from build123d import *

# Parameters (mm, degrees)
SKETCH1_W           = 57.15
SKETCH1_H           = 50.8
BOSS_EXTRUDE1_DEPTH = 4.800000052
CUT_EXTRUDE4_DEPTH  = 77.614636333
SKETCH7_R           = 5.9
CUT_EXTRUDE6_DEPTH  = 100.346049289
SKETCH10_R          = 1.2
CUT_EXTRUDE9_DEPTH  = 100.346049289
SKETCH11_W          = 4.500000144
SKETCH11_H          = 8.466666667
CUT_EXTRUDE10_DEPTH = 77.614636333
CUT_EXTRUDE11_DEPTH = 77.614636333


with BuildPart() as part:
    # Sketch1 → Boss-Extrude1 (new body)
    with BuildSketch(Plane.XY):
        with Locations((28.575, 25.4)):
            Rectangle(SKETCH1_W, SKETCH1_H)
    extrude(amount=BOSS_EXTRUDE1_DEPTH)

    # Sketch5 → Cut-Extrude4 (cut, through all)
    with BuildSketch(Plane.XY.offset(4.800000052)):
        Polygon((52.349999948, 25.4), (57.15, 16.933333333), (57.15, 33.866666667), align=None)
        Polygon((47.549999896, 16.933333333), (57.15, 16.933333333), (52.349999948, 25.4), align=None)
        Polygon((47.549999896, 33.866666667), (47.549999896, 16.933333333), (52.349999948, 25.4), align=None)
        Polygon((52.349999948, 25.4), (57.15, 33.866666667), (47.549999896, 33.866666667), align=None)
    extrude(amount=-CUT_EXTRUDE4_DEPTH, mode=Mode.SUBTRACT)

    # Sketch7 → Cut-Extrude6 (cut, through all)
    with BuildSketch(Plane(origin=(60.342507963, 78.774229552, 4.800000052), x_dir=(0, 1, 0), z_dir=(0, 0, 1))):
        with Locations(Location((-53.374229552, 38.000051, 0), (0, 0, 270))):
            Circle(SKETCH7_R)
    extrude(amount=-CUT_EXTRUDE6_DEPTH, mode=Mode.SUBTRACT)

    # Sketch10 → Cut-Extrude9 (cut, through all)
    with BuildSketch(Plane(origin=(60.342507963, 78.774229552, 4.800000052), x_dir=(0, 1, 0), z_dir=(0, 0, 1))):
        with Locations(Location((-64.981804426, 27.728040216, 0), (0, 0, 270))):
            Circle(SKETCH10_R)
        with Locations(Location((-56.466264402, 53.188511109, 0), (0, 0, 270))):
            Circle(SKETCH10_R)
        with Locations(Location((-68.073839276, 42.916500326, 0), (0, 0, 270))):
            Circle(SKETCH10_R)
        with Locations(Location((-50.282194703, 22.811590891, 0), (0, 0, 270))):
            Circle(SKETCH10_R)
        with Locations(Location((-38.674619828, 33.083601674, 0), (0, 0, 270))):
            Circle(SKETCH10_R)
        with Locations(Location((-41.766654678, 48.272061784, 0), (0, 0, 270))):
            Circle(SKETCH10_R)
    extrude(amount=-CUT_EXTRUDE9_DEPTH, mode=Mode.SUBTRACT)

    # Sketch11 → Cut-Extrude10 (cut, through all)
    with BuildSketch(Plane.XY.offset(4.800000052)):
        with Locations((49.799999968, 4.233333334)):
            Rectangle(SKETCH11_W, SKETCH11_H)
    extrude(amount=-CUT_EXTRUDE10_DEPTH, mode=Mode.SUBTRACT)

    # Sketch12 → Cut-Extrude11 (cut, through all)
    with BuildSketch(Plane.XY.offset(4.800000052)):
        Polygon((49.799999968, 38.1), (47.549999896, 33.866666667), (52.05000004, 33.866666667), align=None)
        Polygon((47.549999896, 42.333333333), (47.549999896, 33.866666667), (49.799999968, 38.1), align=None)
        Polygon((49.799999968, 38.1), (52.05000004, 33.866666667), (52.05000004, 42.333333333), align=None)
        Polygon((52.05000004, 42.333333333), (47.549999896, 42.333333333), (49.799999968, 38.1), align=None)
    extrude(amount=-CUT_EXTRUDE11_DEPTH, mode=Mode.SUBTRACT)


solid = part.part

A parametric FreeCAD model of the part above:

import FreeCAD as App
import Part
import Sketcher

V = App.Vector
Q = App.Units.Quantity

doc = App.newDocument("Part")
body = doc.addObject("PartDesign::Body", "Body")

# Sketch on XY plane
sketch1 = doc.addObject("Sketcher::SketchObject", "Sketch")
body.addObject(sketch1)
sketch1.AttachmentSupport = (doc.XY_Plane, [""])
sketch1.MapMode = "FlatFace"
sketch1.addGeometry(Part.LineSegment(V(0, 51, 0), V(0, 0, 0)), False)
sketch1.addGeometry(Part.LineSegment(V(0, 0, 0), V(57, 0, 0)), False)
sketch1.addGeometry(Part.LineSegment(V(57, 0, 0), V(57, 51, 0)), False)
sketch1.addGeometry(Part.LineSegment(V(57, 51, 0), V(0, 51, 0)), False)
sketch1.addConstraint(Sketcher.Constraint("Coincident", 0, 2, 1, 1))
sketch1.addConstraint(Sketcher.Constraint("Coincident", 1, 2, 2, 1))
sketch1.addConstraint(Sketcher.Constraint("Coincident", 2, 2, 3, 1))
sketch1.addConstraint(Sketcher.Constraint("Coincident", 3, 2, 0, 1))
sketch1.addConstraint(Sketcher.Constraint("Vertical", 0))
sketch1.addConstraint(Sketcher.Constraint("Horizontal", 1))
sketch1.addConstraint(Sketcher.Constraint("Vertical", 2))
sketch1.addConstraint(Sketcher.Constraint("Horizontal", 3))
sketch1.addConstraint(Sketcher.Constraint("Coincident", 0, 2, -1, 1))
sketch1.addConstraint(Sketcher.Constraint("DistanceY", 0, 2, 0, 1, Q("50.8 mm")))
sketch1.addConstraint(Sketcher.Constraint("DistanceX", 1, 1, 1, 2, Q("57.15 mm")))
pad1 = doc.addObject("PartDesign::Pad", "Pad")
body.addObject(pad1)
pad1.Profile = sketch1
pad1.Length = 4.8

# Sketch on XY plane
sketch2 = doc.addObject("Sketcher::SketchObject", "Sketch001")
body.addObject(sketch2)
sketch2.AttachmentSupport = (doc.XY_Plane, [""])
sketch2.MapMode = "FlatFace"
sketch2.AttachmentOffset = App.Placement(V(0, 0, 4.8), App.Rotation())
sketch2.addGeometry(Part.LineSegment(V(57, 17, 0), V(57, 34, 0)), False)
sketch2.addGeometry(Part.LineSegment(V(57, 34, 0), V(48, 34, 0)), False)
sketch2.addGeometry(Part.LineSegment(V(48, 34, 0), V(48, 17, 0)), False)
sketch2.addGeometry(Part.LineSegment(V(48, 17, 0), V(57, 17, 0)), False)
sketch2.addConstraint(Sketcher.Constraint("Coincident", 0, 2, 1, 1))
sketch2.addConstraint(Sketcher.Constraint("Coincident", 1, 2, 2, 1))
sketch2.addConstraint(Sketcher.Constraint("Coincident", 2, 2, 3, 1))
sketch2.addConstraint(Sketcher.Constraint("Coincident", 3, 2, 0, 1))
sketch2.addConstraint(Sketcher.Constraint("Vertical", 0))
sketch2.addConstraint(Sketcher.Constraint("Horizontal", 1))
sketch2.addConstraint(Sketcher.Constraint("Vertical", 2))
sketch2.addConstraint(Sketcher.Constraint("Horizontal", 3))
sketch2.addConstraint(Sketcher.Constraint("DistanceX", 1, 2, 1, 1, Q("9.6 mm")))
sketch2.addConstraint(Sketcher.Constraint("DistanceX", -1, 1, 0, 2, Q("57.15 mm")))
sketch2.addConstraint(Sketcher.Constraint("DistanceY", 0, 1, 0, 2, Q("16.933333 mm")))
sketch2.addConstraint(Sketcher.Constraint("DistanceY", -1, 1, 0, 2, Q("33.866667 mm")))
pocket1 = doc.addObject("PartDesign::Pocket", "Pocket")
body.addObject(pocket1)
pocket1.Profile = sketch2
pocket1.Type = "ThroughAll"

# Sketch on XY plane
sketch3 = doc.addObject("Sketcher::SketchObject", "Sketch002")
body.addObject(sketch3)
sketch3.AttachmentSupport = (doc.XY_Plane, [""])
sketch3.MapMode = "FlatFace"
sketch3.AttachmentOffset = App.Placement(V(0, 0, 4.8), App.Rotation())
sketch3.addGeometry(Part.Circle(V(22, 25, 0), V(0, 0, 1), 6), False)
sketch3.addConstraint(Sketcher.Constraint("Diameter", 0, Q("11.8 mm")))
sketch3.addConstraint(Sketcher.Constraint("DistanceY", -1, 1, 0, 3, Q("25.4 mm")))
sketch3.addConstraint(Sketcher.Constraint("DistanceX", -1, 1, 0, 3, Q("22.342457 mm")))
pocket2 = doc.addObject("PartDesign::Pocket", "Pocket001")
body.addObject(pocket2)
pocket2.Profile = sketch3
pocket2.Type = "ThroughAll"

# Sketch on XY plane
sketch4 = doc.addObject("Sketcher::SketchObject", "Sketch003")
body.addObject(sketch4)
sketch4.AttachmentSupport = (doc.XY_Plane, [""])
sketch4.MapMode = "FlatFace"
sketch4.AttachmentOffset = App.Placement(V(0, 0, 4.8), App.Rotation())
sketch4.addGeometry(Part.Circle(V(32.6, 13.8, 0), V(0, 0, 1), 1.2), False)
sketch4.addGeometry(Part.Circle(V(7.2, 22.3, 0), V(0, 0, 1), 1.2), False)
sketch4.addGeometry(Part.Circle(V(17.4, 10.7, 0), V(0, 0, 1), 1.2), False)
sketch4.addGeometry(Part.Circle(V(37.5, 28.5, 0), V(0, 0, 1), 1.2), False)
sketch4.addGeometry(Part.Circle(V(27.3, 40.1, 0), V(0, 0, 1), 1.2), False)
sketch4.addGeometry(Part.Circle(V(12.1, 37, 0), V(0, 0, 1), 1.2), False)
sketch4.addConstraint(Sketcher.Constraint("Equal", 0, 1))
sketch4.addConstraint(Sketcher.Constraint("Equal", 1, 2))
sketch4.addConstraint(Sketcher.Constraint("Equal", 2, 3))
sketch4.addConstraint(Sketcher.Constraint("Equal", 3, 4))
sketch4.addConstraint(Sketcher.Constraint("Equal", 4, 5))
sketch4.addConstraint(Sketcher.Constraint("Diameter", 0, Q("2.4 mm")))
sketch4.addConstraint(Sketcher.Constraint("DistanceX", 2, 3, 4, 3, Q("9.832899 mm")))
sketch4.addConstraint(Sketcher.Constraint("DistanceY", -1, 1, 2, 3, Q("10.70039 mm")))
sketch4.addConstraint(Sketcher.Constraint("DistanceY", -1, 1, 4, 3, Q("40.09961 mm")))
sketch4.addConstraint(Sketcher.Constraint("DistanceX", 1, 3, 0, 3, Q("25.460471 mm")))
sketch4.addConstraint(Sketcher.Constraint("DistanceY", 0, 3, 1, 3, Q("8.51554 mm")))
sketch4.addConstraint(Sketcher.Constraint("DistanceX", 1, 3, 2, 3, Q("10.272011 mm")))
sketch4.addConstraint(Sketcher.Constraint("DistanceX", 0, 3, 3, 3, Q("4.916449 mm")))
sketch4.addConstraint(Sketcher.Constraint("DistanceY", 0, 3, 3, 3, Q("14.69961 mm")))
sketch4.addConstraint(Sketcher.Constraint("DistanceX", 1, 3, 5, 3, Q("4.916449 mm")))
sketch4.addConstraint(Sketcher.Constraint("DistanceY", 1, 3, 5, 3, Q("14.69961 mm")))
sketch4.addConstraint(Sketcher.Constraint("DistanceX", -1, 1, 0, 3, Q("32.614468 mm")))
sketch4.addConstraint(Sketcher.Constraint("DistanceY", -1, 1, 0, 3, Q("13.792425 mm")))
pocket3 = doc.addObject("PartDesign::Pocket", "Pocket002")
body.addObject(pocket3)
pocket3.Profile = sketch4
pocket3.Type = "ThroughAll"

# Sketch on XY plane
sketch5 = doc.addObject("Sketcher::SketchObject", "Sketch004")
body.addObject(sketch5)
sketch5.AttachmentSupport = (doc.XY_Plane, [""])
sketch5.MapMode = "FlatFace"
sketch5.AttachmentOffset = App.Placement(V(0, 0, 4.8), App.Rotation())
sketch5.addGeometry(Part.LineSegment(V(47.5, 8.5, 0), V(47.5, 0, 0)), False)
sketch5.addGeometry(Part.LineSegment(V(47.5, 0, 0), V(52.1, 0, 0)), False)
sketch5.addGeometry(Part.LineSegment(V(52.1, 0, 0), V(52.1, 8.5, 0)), False)
sketch5.addGeometry(Part.LineSegment(V(52.1, 8.5, 0), V(47.5, 8.5, 0)), False)
sketch5.addConstraint(Sketcher.Constraint("Coincident", 0, 2, 1, 1))
sketch5.addConstraint(Sketcher.Constraint("Coincident", 1, 2, 2, 1))
sketch5.addConstraint(Sketcher.Constraint("Coincident", 2, 2, 3, 1))
sketch5.addConstraint(Sketcher.Constraint("Coincident", 3, 2, 0, 1))
sketch5.addConstraint(Sketcher.Constraint("Vertical", 0))
sketch5.addConstraint(Sketcher.Constraint("Horizontal", 1))
sketch5.addConstraint(Sketcher.Constraint("Vertical", 2))
sketch5.addConstraint(Sketcher.Constraint("Horizontal", 3))
sketch5.addConstraint(Sketcher.Constraint("PointOnObject", 0, 2, -1))
sketch5.addConstraint(Sketcher.Constraint("DistanceX", 1, 1, 1, 2, Q("4.5 mm")))
sketch5.addConstraint(Sketcher.Constraint("DistanceX", -1, 1, 0, 2, Q("47.55 mm")))
sketch5.addConstraint(Sketcher.Constraint("DistanceY", 0, 2, 0, 1, Q("8.466667 mm")))
pocket4 = doc.addObject("PartDesign::Pocket", "Pocket003")
body.addObject(pocket4)
pocket4.Profile = sketch5
pocket4.Type = "ThroughAll"

# Sketch on XY plane
sketch6 = doc.addObject("Sketcher::SketchObject", "Sketch005")
body.addObject(sketch6)
sketch6.AttachmentSupport = (doc.XY_Plane, [""])
sketch6.MapMode = "FlatFace"
sketch6.AttachmentOffset = App.Placement(V(0, 0, 4.8), App.Rotation())
sketch6.addGeometry(Part.LineSegment(V(47.5, 33.9, 0), V(52.1, 33.9, 0)), False)
sketch6.addGeometry(Part.LineSegment(V(52.1, 33.9, 0), V(52.1, 42.3, 0)), False)
sketch6.addGeometry(Part.LineSegment(V(52.1, 42.3, 0), V(47.5, 42.3, 0)), False)
sketch6.addGeometry(Part.LineSegment(V(47.5, 42.3, 0), V(47.5, 33.9, 0)), False)
sketch6.addConstraint(Sketcher.Constraint("Coincident", 0, 2, 1, 1))
sketch6.addConstraint(Sketcher.Constraint("Coincident", 1, 2, 2, 1))
sketch6.addConstraint(Sketcher.Constraint("Coincident", 2, 2, 3, 1))
sketch6.addConstraint(Sketcher.Constraint("Coincident", 3, 2, 0, 1))
sketch6.addConstraint(Sketcher.Constraint("Horizontal", 0))
sketch6.addConstraint(Sketcher.Constraint("Vertical", 1))
sketch6.addConstraint(Sketcher.Constraint("Horizontal", 2))
sketch6.addConstraint(Sketcher.Constraint("Vertical", 3))
sketch6.addConstraint(Sketcher.Constraint("DistanceX", 0, 1, 0, 2, Q("4.5 mm")))
sketch6.addConstraint(Sketcher.Constraint("DistanceX", -1, 1, 0, 2, Q("52.05 mm")))
sketch6.addConstraint(Sketcher.Constraint("DistanceY", 1, 1, 1, 2, Q("8.466667 mm")))
sketch6.addConstraint(Sketcher.Constraint("DistanceY", -1, 1, 0, 2, Q("33.866667 mm")))
pocket5 = doc.addObject("PartDesign::Pocket", "Pocket004")
body.addObject(pocket5)
pocket5.Profile = sketch6
pocket5.Type = "ThroughAll"

doc.recompute()
